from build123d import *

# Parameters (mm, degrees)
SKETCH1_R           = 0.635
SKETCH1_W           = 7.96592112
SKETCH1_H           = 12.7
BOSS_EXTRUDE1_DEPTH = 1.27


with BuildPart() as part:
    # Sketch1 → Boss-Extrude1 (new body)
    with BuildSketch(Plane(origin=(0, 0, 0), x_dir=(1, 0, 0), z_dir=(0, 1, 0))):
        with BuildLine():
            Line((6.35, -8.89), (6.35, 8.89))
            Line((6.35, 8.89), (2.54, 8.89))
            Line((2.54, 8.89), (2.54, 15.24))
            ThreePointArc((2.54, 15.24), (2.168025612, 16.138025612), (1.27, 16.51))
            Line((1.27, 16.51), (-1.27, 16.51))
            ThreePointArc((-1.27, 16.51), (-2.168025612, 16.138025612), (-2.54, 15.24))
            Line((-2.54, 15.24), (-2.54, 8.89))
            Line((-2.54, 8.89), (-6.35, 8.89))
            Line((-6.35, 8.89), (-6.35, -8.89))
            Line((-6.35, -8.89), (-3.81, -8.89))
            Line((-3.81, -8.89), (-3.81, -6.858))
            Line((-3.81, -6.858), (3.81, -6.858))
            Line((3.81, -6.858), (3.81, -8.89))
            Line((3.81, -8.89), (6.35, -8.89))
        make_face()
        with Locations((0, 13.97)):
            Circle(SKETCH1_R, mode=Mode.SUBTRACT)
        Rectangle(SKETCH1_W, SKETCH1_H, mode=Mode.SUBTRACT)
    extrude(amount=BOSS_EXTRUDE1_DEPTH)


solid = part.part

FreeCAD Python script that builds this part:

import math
import FreeCAD as App
import Part
import Sketcher
from FreeCAD import Vector
Q = App.Units.Quantity


def add_polygon(sketch, points):
    """Adds a closed chain of lines whose ends are joined by coincident constraints."""
    first, n = sketch.GeometryCount, len(points)
    for a, b in zip(points, points[1:] + points[:1]):
        sketch.addGeometry(Part.LineSegment(App.Vector(*a, 0), App.Vector(*b, 0)), False)
    for i in range(n):
        sketch.addConstraint(Sketcher.Constraint("Coincident", first + i, 2, first + (i + 1) % n, 1))

doc = App.newDocument("Part")
params = doc.addObject("Spreadsheet::Sheet", "Params")
for row, (alias, value) in enumerate([
    ("sketch1_diameter", "0.05 in"),
    ("sketch1_radius", "0.05 in"),
    ("sketch1_width", "0.1 in"),
    ("sketch1_width2", "0.3 in"),
    ("sketch1_height", "0.7 in"),
    ("pad1_length", "0.05 in"),
], start=1):
    params.set(f"A{row}", alias)
    params.set(f"B{row}", "=" + value)
    params.setAlias(f"B{row}", alias)

body = doc.addObject("PartDesign::Body", "Body")

# Sketch on XZ plane
sketch1 = body.newObject("Sketcher::SketchObject", "Sketch")
sketch1.AttachmentSupport = (doc.getObject("XZ_Plane"), [""])
sketch1.MapMode = "FlatFace"
sketch1.addGeometry(Part.LineSegment(Vector(6.35, 8.89, 0), Vector(6.35, -8.89, 0)), False)  # 0
sketch1.addGeometry(Part.LineSegment(Vector(6.35, -8.89, 0), Vector(2.54, -8.89, 0)), False)  # 1
sketch1.addGeometry(Part.LineSegment(Vector(2.54, -8.89, 0), Vector(2.54, -15.24, 0)), False)  # 2
sketch1.addGeometry(Part.ArcOfCircle(Part.Circle(Vector(1.27, -15.24, 0), Vector(0, 0, 1), 1.27), math.radians(-90), math.radians(0)), False)  # 3
sketch1.addGeometry(Part.LineSegment(Vector(1.27, -16.51, 0), Vector(-1.27, -16.51, 0)), False)  # 4
sketch1.addGeometry(Part.ArcOfCircle(Part.Circle(Vector(-1.27, -15.24, 0), Vector(0, 0, 1), 1.27), math.radians(180), math.radians(270)), False)  # 5
sketch1.addGeometry(Part.LineSegment(Vector(-2.54, -15.24, 0), Vector(-2.54, -8.89, 0)), False)  # 6
sketch1.addGeometry(Part.LineSegment(Vector(-2.54, -8.89, 0), Vector(-6.35, -8.89, 0)), False)  # 7
sketch1.addGeometry(Part.LineSegment(Vector(-6.35, -8.89, 0), Vector(-6.35, 8.89, 0)), False)  # 8
sketch1.addGeometry(Part.LineSegment(Vector(-6.35, 8.89, 0), Vector(-3.81, 8.89, 0)), False)  # 9
sketch1.addGeometry(Part.LineSegment(Vector(-3.81, 8.89, 0), Vector(-3.81, 6.858, 0)), False)  # 10
sketch1.addGeometry(Part.LineSegment(Vector(-3.81, 6.858, 0), Vector(3.81, 6.858, 0)), False)  # 11
sketch1.addGeometry(Part.LineSegment(Vector(3.81, 6.858, 0), Vector(3.81, 8.89, 0)), False)  # 12
sketch1.addGeometry(Part.LineSegment(Vector(3.81, 8.89, 0), Vector(6.35, 8.89, 0)), False)  # 13
add_polygon(sketch1, [(3.982961, 6.35), (-3.982961, 6.35), (-3.982961, -6.35), (3.982961, -6.35)])  # lines 14-17
sketch1.addGeometry(Part.Circle(Vector(0, -13.97, 0), Vector(0, 0, 1), 0.635), False)  # 18
sketch1.addConstraint(Sketcher.Constraint("Coincident", 0, 2, 1, 1))
sketch1.addConstraint(Sketcher.Constraint("Coincident", 1, 2, 2, 1))
sketch1.addConstraint(Sketcher.Constraint("Tangent", 2, 2, 3, 2))
sketch1.addConstraint(Sketcher.Constraint("Tangent", 3, 1, 4, 1))
sketch1.addConstraint(Sketcher.Constraint("Tangent", 4, 2, 5, 2))
sketch1.addConstraint(Sketcher.Constraint("Tangent", 5, 1, 6, 1))
sketch1.addConstraint(Sketcher.Constraint("Coincident", 6, 2, 7, 1))
sketch1.addConstraint(Sketcher.Constraint("Coincident", 7, 2, 8, 1))
sketch1.addConstraint(Sketcher.Constraint("Coincident", 8, 2, 9, 1))
sketch1.addConstraint(Sketcher.Constraint("Coincident", 9, 2, 10, 1))
sketch1.addConstraint(Sketcher.Constraint("Coincident", 10, 2, 11, 1))
sketch1.addConstraint(Sketcher.Constraint("Coincident", 11, 2, 12, 1))
sketch1.addConstraint(Sketcher.Constraint("Coincident", 12, 2, 13, 1))
sketch1.addConstraint(Sketcher.Constraint("Coincident", 13, 2, 0, 1))
sketch1.addConstraint(Sketcher.Constraint("Vertical", 0))
sketch1.addConstraint(Sketcher.Constraint("Horizontal", 1))
sketch1.addConstraint(Sketcher.Constraint("Vertical", 2))
sketch1.addConstraint(Sketcher.Constraint("Horizontal", 4))
sketch1.addConstraint(Sketcher.Constraint("Vertical", 6))
sketch1.addConstraint(Sketcher.Constraint("Horizontal", 7))
sketch1.addConstraint(Sketcher.Constraint("Vertical", 8))
sketch1.addConstraint(Sketcher.Constraint("Horizontal", 9))
sketch1.addConstraint(Sketcher.Constraint("Vertical", 10))
sketch1.addConstraint(Sketcher.Constraint("Horizontal", 11))
sketch1.addConstraint(Sketcher.Constraint("Vertical", 12))
sketch1.addConstraint(Sketcher.Constraint("Horizontal", 13))
sketch1.addConstraint(Sketcher.Constraint("Horizontal", 14))
sketch1.addConstraint(Sketcher.Constraint("Vertical", 15))
sketch1.addConstraint(Sketcher.Constraint("Horizontal", 16))
sketch1.addConstraint(Sketcher.Constraint("Vertical", 17))
sketch1.addConstraint(Sketcher.Constraint("Equal", 3, 5))
sketch1.addConstraint(Sketcher.Constraint("Symmetric", 0, 2, 8, 2, -1, 1))
sketch1.addConstraint(Sketcher.Constraint("Symmetric", 14, 2, 16, 2, -1, 1))
sketch1.addConstraint(Sketcher.Constraint("Symmetric", 1, 2, 6, 2, -2))
sketch1.addConstraint(Sketcher.Constraint("Symmetric", 9, 2, 12, 2, -2))
sketch1.addConstraint(Sketcher.Constraint("PointOnObject", 18, 3, -2))
sketch1.addConstraint(Sketcher.Constraint("Equal", 4, 9))
sketch1.addConstraint(Sketcher.Constraint("Diameter", 18, Q("0.05 in")))
sketch1.addConstraint(Sketcher.Constraint("Radius", 3, Q("0.05 in")))
sketch1.addConstraint(Sketcher.Constraint("DistanceX", 4, 2, 4, 1, Q("0.1 in")))
sketch1.addConstraint(Sketcher.Constraint("DistanceX", 11, 1, 11, 2, Q("0.3 in")))
sketch1.addConstraint(Sketcher.Constraint("DistanceY", 0, 2, 0, 1, Q("0.7 in")))
sketch1.addConstraint(Sketcher.Constraint("DistanceY", 15, 2, 15, 1, Q("0.5 in")))
sketch1.addConstraint(Sketcher.Constraint("DistanceY", 2, 2, 2, 1, Q("0.25 in")))
sketch1.addConstraint(Sketcher.Constraint("DistanceY", 10, 2, 10, 1, Q("0.08 in")))
sketch1.addConstraint(Sketcher.Constraint("DistanceY", 18, 3, 0, 2, Q("0.2 in")))
sketch1.addConstraint(Sketcher.Constraint("DistanceX", 14, 2, 14, 1, 7.965921))
sketch1.setExpression("Constraints[41]", "Params.sketch1_diameter")
sketch1.setExpression("Constraints[42]", "Params.sketch1_radius")
sketch1.setExpression("Constraints[43]", "Params.sketch1_width")
sketch1.setExpression("Constraints[44]", "Params.sketch1_width2")
sketch1.setExpression("Constraints[45]", "Params.sketch1_height")
pad1 = body.newObject("PartDesign::Pad", "Pad")
pad1.Profile = sketch1
pad1.setExpression("Length", "Params.pad1_length")
pad1.Reversed = True

doc.recompute()
